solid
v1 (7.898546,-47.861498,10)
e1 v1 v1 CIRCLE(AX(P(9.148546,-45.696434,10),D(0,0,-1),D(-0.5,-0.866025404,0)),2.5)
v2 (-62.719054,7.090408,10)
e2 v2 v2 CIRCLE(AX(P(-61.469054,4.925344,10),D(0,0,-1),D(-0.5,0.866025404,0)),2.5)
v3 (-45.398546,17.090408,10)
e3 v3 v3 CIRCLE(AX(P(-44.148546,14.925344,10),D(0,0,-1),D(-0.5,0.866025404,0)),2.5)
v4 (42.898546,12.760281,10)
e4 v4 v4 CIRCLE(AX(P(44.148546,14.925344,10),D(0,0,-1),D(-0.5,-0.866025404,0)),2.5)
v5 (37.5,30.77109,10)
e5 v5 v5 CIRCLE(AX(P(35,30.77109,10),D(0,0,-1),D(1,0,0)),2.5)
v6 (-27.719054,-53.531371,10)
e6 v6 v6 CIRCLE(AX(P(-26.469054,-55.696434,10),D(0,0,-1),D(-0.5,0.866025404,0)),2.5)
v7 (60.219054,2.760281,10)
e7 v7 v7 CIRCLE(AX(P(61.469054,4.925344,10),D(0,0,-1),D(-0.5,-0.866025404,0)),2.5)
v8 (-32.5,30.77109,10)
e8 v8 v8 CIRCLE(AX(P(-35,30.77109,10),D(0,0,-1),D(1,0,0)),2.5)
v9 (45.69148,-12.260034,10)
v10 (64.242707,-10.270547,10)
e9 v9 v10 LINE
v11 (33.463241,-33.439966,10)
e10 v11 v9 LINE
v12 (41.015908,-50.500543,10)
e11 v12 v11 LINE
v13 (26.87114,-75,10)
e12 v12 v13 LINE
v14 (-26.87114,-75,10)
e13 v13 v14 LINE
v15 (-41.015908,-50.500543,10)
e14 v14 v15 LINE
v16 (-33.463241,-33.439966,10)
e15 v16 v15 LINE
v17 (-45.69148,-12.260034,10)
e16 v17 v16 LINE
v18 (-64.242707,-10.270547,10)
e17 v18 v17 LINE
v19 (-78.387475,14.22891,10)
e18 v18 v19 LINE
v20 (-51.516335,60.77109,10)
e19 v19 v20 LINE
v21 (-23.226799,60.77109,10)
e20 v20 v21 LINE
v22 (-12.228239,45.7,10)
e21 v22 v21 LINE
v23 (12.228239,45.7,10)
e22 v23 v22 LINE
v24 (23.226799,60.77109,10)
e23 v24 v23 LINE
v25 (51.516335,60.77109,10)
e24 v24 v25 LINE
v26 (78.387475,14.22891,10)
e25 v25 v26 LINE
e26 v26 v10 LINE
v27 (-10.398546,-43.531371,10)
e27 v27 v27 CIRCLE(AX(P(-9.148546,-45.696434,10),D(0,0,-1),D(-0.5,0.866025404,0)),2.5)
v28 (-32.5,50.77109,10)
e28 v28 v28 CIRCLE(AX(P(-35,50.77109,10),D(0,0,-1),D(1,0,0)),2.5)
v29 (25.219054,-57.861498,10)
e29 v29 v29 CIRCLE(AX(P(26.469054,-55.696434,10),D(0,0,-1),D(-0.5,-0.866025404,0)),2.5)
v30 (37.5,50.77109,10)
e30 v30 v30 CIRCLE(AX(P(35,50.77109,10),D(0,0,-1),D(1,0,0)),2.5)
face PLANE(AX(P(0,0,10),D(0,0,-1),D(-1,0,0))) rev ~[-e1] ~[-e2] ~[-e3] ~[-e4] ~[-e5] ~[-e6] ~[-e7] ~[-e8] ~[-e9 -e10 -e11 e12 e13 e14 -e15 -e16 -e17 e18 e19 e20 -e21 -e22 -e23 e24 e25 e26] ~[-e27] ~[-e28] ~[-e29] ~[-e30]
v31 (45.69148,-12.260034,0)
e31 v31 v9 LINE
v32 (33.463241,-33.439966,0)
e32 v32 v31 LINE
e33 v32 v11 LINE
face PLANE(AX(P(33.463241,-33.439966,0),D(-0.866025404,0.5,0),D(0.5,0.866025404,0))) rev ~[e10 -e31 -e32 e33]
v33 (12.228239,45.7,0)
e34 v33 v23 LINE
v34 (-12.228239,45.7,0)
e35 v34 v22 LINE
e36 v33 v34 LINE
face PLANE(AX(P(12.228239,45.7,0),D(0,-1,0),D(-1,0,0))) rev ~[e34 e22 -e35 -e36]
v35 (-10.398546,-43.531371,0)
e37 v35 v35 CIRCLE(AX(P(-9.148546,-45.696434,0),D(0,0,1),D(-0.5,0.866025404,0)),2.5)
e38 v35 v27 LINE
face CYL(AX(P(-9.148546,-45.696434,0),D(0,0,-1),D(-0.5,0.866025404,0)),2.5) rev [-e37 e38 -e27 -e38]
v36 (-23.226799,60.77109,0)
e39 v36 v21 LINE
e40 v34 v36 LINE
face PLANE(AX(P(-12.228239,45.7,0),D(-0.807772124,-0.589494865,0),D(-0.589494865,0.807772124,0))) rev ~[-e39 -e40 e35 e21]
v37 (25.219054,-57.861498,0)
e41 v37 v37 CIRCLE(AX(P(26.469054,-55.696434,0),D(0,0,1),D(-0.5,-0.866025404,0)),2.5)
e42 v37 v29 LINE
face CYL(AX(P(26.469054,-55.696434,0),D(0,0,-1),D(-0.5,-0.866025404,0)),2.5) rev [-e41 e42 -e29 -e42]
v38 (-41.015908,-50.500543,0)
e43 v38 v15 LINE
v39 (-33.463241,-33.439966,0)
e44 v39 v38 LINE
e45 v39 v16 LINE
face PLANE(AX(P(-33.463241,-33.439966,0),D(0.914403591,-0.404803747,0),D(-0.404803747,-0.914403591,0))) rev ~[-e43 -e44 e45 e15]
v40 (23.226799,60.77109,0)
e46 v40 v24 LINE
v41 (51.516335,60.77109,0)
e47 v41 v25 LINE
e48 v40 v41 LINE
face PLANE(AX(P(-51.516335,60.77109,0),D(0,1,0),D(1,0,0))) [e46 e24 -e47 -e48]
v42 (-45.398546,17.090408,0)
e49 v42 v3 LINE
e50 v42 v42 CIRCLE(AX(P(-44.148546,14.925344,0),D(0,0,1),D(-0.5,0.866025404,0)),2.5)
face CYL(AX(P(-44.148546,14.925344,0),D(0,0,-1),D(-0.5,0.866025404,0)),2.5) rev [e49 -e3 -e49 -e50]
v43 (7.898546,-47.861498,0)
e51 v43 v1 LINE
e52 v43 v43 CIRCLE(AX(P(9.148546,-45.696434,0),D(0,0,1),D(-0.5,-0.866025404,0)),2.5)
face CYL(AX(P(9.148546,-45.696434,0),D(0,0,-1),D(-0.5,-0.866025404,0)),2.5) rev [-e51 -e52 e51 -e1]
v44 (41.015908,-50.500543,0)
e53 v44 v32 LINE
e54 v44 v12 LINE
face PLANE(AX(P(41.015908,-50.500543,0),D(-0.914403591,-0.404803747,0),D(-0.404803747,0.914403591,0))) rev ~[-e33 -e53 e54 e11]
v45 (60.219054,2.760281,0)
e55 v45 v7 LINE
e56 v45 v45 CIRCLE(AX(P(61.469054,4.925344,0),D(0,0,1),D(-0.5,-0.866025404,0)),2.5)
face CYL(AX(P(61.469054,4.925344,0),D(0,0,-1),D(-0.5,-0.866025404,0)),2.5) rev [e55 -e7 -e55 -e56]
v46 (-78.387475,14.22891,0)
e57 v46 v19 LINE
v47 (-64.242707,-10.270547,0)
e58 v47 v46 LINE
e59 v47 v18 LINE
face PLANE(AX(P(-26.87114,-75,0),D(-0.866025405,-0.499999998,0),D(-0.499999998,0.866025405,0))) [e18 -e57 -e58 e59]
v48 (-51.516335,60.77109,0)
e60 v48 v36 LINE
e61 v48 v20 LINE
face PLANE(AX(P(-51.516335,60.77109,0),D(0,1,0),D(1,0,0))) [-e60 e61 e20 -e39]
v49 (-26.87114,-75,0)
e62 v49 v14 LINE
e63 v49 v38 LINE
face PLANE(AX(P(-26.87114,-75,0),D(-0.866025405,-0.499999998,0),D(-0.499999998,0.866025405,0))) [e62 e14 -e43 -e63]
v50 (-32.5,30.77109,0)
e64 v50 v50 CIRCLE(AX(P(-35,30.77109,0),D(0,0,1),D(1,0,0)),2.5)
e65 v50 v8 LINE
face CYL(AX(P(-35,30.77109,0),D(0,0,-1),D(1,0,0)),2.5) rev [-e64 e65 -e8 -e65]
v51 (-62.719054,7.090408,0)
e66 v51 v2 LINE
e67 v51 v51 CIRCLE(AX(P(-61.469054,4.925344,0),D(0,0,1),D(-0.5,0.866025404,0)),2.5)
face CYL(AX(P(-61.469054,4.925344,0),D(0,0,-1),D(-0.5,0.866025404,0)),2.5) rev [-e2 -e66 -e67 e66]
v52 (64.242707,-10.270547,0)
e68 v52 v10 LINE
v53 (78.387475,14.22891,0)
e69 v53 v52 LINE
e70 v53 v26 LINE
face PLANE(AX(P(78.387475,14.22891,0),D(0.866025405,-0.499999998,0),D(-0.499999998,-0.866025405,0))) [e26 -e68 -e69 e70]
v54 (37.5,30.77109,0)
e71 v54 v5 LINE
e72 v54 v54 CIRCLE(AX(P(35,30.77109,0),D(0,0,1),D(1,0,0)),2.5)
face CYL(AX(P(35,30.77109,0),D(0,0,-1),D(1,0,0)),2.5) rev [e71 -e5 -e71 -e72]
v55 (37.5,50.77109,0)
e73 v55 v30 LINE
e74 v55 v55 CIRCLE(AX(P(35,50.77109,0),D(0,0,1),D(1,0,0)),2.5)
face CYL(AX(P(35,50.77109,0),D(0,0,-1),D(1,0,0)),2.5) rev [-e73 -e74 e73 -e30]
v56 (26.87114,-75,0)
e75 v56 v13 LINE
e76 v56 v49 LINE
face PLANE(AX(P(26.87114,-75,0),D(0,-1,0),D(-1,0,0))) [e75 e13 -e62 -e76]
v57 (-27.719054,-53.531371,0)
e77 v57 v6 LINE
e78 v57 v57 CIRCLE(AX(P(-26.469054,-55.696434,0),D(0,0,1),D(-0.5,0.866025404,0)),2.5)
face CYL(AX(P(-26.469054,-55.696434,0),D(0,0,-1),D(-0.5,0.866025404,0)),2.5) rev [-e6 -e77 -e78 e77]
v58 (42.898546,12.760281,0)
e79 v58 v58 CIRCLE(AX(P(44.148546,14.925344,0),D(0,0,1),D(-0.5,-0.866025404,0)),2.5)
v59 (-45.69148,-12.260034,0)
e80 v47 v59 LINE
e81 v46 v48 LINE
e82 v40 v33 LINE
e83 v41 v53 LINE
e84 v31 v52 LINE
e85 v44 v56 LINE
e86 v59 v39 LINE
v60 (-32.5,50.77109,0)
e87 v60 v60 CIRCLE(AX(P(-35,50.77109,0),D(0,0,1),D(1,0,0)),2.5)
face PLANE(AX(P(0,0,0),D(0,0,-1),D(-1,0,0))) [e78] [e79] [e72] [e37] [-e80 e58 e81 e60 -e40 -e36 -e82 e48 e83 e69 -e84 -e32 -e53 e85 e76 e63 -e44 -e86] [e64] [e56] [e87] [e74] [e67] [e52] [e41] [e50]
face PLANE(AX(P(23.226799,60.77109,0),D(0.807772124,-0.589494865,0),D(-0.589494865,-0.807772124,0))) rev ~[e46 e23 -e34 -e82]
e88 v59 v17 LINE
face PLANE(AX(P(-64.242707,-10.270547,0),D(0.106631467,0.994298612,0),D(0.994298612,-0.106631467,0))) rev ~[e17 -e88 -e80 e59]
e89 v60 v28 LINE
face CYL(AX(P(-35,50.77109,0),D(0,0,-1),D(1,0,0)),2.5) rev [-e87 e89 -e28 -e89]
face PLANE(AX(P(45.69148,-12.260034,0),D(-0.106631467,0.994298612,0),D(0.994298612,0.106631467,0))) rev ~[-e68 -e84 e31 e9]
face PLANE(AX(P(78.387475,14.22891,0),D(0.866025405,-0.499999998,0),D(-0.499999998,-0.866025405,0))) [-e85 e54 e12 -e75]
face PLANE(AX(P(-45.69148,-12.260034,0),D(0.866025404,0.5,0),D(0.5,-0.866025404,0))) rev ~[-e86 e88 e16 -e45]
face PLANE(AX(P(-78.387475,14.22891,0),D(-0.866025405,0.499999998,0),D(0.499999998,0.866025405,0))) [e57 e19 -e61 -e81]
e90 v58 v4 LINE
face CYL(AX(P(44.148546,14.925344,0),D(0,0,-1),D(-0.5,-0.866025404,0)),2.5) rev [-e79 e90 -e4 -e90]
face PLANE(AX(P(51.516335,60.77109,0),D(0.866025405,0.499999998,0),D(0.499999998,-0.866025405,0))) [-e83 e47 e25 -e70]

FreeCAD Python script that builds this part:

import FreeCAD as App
import Part
import Sketcher
Q = App.Units.Quantity


def add_polygon(sketch, points):
    """Adds a closed chain of lines whose ends are joined by coincident constraints."""
    first, n = sketch.GeometryCount, len(points)
    for a, b in zip(points, points[1:] + points[:1]):
        sketch.addGeometry(Part.LineSegment(App.Vector(*a, 0), App.Vector(*b, 0)), False)
    for i in range(n):
        sketch.addConstraint(Sketcher.Constraint("Coincident", first + i, 2, first + (i + 1) % n, 1))

doc = App.newDocument("Part")
body = doc.addObject("PartDesign::Body", "Body")

# Sketch on XY plane
sketch1 = body.newObject("Sketcher::SketchObject", "Sketch")
sketch1.AttachmentSupport = (doc.getObject("XY_Plane"), [""])
sketch1.MapMode = "FlatFace"
add_polygon(sketch1, [(51.516335, 60.77109), (-51.516335, 60.77109), (-78.387475, 14.22891), (-26.87114, -75), (26.87114, -75), (78.387475, 14.22891)])  # lines 0-5
sketch1.addConstraint([
    Sketcher.Constraint("Horizontal", 0),
    Sketcher.Constraint("Horizontal", 3),
    Sketcher.Constraint("Symmetric", 1, 2, 4, 2, -2),
    Sketcher.Constraint("Parallel", 1, 4),
    Sketcher.Constraint("Parallel", 2, 5),
    Sketcher.Constraint("Equal", 2, 4),
    Sketcher.Constraint("Angle", 1, Q("-120 deg")),
    Sketcher.Constraint("DistanceY", 2, 2, -1, 1, Q("75 mm")),
    Sketcher.Constraint("DistanceX", 0, 2, 0, 1, Q("103.03267 mm")),
    Sketcher.Constraint("DistanceX", 3, 1, 3, 2, Q("53.74228 mm")),
    Sketcher.Constraint("Distance", 1, Q("53.74228 mm")),
])
pad1 = body.newObject("PartDesign::Pad", "Pad")
pad1.Profile = sketch1
pad1.Length = 10

# Sketch on XY plane
sketch2 = body.newObject("Sketcher::SketchObject", "Sketch001")
sketch2.AttachmentSupport = (doc.getObject("XY_Plane"), [""])
sketch2.MapMode = "FlatFace"
sketch2.addGeometry(Part.Circle(App.Vector(-35, 50.77109, 0), App.Vector(0, 0, 1), 2.5), False)  # 0
sketch2.addGeometry(Part.Circle(App.Vector(35, 50.77109, 0), App.Vector(0, 0, 1), 2.5), False)  # 1
sketch2.addGeometry(Part.Circle(App.Vector(-35, 30.77109, 0), App.Vector(0, 0, 1), 2.5), False)  # 2
sketch2.addGeometry(Part.Circle(App.Vector(35, 30.77109, 0), App.Vector(0, 0, 1), 2.5), False)  # 3
add_polygon(sketch2, [(12.228239, 45.7), (23.226799, 60.77109), (-23.226799, 60.77109), (-12.228239, 45.7)])  # lines 4-7
sketch2.addConstraint([
    Sketcher.Constraint("Horizontal", 5),
    Sketcher.Constraint("Horizontal", 7),
    Sketcher.Constraint("Equal", 0, 1),
    Sketcher.Constraint("Equal", 1, 2),
    Sketcher.Constraint("Equal", 2, 3),
    Sketcher.Constraint("Symmetric", 0, 3, 1, 3, -2),
    Sketcher.Constraint("Symmetric", 2, 3, 3, 3, -2),
    Sketcher.Constraint("Vertical", 0, 3, 2, 3),
    Sketcher.Constraint("Equal", 4, 6),
    Sketcher.Constraint("Diameter", 0, Q("5 mm")),
    Sketcher.Constraint("DistanceX", 0, 3, -1, 1, Q("35 mm")),
    Sketcher.Constraint("DistanceY", 2, 3, 0, 3, Q("20 mm")),
    Sketcher.Constraint("DistanceY", 1, 3, 4, 2, Q("10 mm")),
    Sketcher.Constraint("DistanceY", -1, 1, 6, 2, Q("45.7 mm")),
    Sketcher.Constraint("Distance", 4, Q("18.657601 mm")),
    Sketcher.Constraint("DistanceX", 7, 1, 7, 2, Q("24.456478 mm")),
    Sketcher.Constraint("DistanceX", -1, 1, 4, 2, Q("23.226799 mm")),
    Sketcher.Constraint("DistanceX", 5, 2, -1, 1, Q("23.226799 mm")),
])
pocket1 = body.newObject("PartDesign::Pocket", "Pocket")
pocket1.Profile = sketch2
pocket1.Type = "ThroughAll"
pocket1.Reversed = True
doc.recompute()

polarpattern = body.newObject("PartDesign::PolarPattern", "PolarPattern")
polarpattern.Originals = [pocket1]
polarpattern.Axis = (doc.getObject("Z_Axis"), [""])
polarpattern.Angle = 360
polarpattern.Occurrences = 3
body.Tip = polarpattern

doc.recompute()
